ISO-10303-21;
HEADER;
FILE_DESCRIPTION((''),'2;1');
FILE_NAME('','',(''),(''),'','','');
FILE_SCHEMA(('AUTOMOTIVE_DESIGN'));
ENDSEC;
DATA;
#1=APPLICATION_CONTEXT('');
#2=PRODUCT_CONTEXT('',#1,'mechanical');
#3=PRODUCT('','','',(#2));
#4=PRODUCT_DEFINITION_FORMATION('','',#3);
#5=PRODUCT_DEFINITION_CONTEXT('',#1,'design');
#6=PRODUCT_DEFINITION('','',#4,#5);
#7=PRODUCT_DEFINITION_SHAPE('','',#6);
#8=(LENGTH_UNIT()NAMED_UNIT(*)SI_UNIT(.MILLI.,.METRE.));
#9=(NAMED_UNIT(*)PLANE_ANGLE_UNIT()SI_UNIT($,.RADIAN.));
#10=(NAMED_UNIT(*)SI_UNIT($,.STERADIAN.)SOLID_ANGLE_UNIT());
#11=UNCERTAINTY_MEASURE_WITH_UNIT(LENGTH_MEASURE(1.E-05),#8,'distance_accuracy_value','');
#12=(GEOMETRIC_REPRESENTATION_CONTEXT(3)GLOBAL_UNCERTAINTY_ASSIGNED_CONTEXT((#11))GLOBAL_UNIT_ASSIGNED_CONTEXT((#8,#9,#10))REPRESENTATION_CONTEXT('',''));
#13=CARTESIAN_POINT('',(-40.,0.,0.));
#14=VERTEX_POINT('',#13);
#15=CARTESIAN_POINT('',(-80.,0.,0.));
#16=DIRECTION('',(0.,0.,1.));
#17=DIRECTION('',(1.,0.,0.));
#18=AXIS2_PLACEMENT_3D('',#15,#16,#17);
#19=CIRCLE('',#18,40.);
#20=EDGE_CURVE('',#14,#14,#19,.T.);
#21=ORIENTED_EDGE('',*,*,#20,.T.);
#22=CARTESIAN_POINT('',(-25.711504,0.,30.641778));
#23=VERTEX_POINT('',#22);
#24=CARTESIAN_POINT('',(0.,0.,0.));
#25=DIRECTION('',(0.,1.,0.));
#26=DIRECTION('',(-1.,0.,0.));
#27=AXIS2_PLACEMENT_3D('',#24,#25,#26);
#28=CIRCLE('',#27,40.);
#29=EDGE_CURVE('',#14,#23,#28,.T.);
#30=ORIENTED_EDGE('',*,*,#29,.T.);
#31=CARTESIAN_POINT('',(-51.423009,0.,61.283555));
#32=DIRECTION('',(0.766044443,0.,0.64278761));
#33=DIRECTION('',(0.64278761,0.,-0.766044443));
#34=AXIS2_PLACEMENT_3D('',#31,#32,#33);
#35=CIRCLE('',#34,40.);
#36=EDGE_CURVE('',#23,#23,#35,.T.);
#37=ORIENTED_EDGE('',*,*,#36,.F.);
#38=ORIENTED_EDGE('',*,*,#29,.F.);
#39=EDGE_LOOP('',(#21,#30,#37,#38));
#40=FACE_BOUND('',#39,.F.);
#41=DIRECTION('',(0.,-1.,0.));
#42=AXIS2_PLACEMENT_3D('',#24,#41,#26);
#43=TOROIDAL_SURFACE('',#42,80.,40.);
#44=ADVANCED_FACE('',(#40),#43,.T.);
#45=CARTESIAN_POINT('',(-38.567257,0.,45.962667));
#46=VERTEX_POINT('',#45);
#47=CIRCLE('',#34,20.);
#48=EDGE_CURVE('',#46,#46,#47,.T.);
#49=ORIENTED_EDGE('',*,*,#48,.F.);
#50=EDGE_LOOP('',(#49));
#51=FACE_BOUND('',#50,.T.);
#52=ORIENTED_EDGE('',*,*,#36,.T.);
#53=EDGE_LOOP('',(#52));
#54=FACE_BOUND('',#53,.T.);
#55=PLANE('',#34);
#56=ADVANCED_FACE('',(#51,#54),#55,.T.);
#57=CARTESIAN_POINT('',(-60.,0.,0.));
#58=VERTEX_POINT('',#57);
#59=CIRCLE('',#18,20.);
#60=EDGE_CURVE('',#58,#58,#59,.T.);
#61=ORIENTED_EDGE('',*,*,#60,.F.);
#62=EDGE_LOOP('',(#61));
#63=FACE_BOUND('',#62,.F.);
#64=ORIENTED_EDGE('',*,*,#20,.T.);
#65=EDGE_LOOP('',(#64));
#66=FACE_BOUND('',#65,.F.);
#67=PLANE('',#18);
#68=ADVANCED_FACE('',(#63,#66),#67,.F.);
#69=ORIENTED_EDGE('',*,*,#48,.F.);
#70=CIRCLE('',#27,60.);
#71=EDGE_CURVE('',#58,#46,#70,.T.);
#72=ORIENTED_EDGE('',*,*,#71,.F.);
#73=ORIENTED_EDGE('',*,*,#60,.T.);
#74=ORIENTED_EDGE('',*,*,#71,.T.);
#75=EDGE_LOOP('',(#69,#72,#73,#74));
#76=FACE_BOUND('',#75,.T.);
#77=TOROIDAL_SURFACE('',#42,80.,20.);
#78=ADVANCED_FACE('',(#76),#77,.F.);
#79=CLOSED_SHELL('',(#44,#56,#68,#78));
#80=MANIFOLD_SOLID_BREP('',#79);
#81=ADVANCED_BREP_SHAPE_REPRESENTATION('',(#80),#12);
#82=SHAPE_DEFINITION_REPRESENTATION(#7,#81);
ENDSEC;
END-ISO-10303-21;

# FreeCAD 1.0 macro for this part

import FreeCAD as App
import Part
import Sketcher

V = App.Vector
Q = App.Units.Quantity

doc = App.newDocument("Part")
body = doc.addObject("PartDesign::Body", "Body")

# Sketch on XY plane
sketch1 = body.newObject("Sketcher::SketchObject", "Sketch")
sketch1.AttachmentSupport = (doc.getObject("XY_Plane"), [""])
sketch1.MapMode = "FlatFace"
sketch1.addGeometry([
    Part.Circle(V(-80, 0, 0), V(0, 0, 1), 40),
    Part.Circle(V(-80, 0, 0), V(0, 0, 1), 20),
], False)
sketch1.addConstraint([
    Sketcher.Constraint("Coincident", 1, 3, 0, 3),
    Sketcher.Constraint("PointOnObject", 0, 3, -1),
    Sketcher.Constraint("Diameter", 0, Q("80 mm")),
    Sketcher.Constraint("Diameter", 1, Q("40 mm")),
    Sketcher.Constraint("DistanceX", 0, 3, -1, 1, Q("80 mm")),
])
revolution = body.newObject("PartDesign::Revolution", "Revolution")
revolution.Profile = sketch1
revolution.ReferenceAxis = (sketch1, ["V_Axis"])
revolution.Angle = 50

doc.recompute()
